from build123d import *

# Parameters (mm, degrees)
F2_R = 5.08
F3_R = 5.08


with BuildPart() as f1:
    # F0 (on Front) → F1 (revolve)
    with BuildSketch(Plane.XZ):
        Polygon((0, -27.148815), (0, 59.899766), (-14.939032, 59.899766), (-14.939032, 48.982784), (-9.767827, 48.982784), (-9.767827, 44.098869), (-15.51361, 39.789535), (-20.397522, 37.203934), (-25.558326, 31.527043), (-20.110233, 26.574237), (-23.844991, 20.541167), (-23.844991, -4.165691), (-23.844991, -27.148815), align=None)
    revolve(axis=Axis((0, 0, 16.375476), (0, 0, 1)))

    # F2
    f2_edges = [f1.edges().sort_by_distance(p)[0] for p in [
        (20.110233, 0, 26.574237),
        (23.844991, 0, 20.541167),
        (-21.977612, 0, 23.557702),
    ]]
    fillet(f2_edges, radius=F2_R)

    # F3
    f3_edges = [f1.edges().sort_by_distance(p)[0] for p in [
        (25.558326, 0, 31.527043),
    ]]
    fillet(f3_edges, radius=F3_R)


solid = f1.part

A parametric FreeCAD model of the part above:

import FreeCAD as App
import Part
import Sketcher
Q = App.Units.Quantity


def edges_at(feature, points):
    """Names of the edges that pass closest to the given points."""
    edges = feature.Shape.Edges
    near = lambda p: min(range(len(edges)), key=lambda i: edges[i].distToShape(Part.Vertex(*p))[0])
    return sorted({f"Edge{near(p) + 1}" for p in points})


def add_polygon(sketch, points):
    """Adds a closed chain of lines whose ends are joined by coincident constraints."""
    first, n = sketch.GeometryCount, len(points)
    for a, b in zip(points, points[1:] + points[:1]):
        sketch.addGeometry(Part.LineSegment(App.Vector(*a, 0), App.Vector(*b, 0)), False)
    for i in range(n):
        sketch.addConstraint(Sketcher.Constraint("Coincident", first + i, 2, first + (i + 1) % n, 1))

doc = App.newDocument("Part")
params = doc.addObject("Spreadsheet::Sheet", "Params")
for row, (alias, value) in enumerate([
    ("revolution_angle", "360 deg"),
    ("fillet_radius", "0.2 in"),
    ("fillet2_radius", "0.2 in"),
], start=1):
    params.set(f"A{row}", alias)
    params.set(f"B{row}", "=" + value)
    params.setAlias(f"B{row}", alias)

body = doc.addObject("PartDesign::Body", "Body")

# Sketch on XZ plane
sketch1 = body.newObject("Sketcher::SketchObject", "Sketch")
sketch1.AttachmentSupport = (doc.getObject("XZ_Plane"), [""])
sketch1.MapMode = "FlatFace"
add_polygon(sketch1, [(0, -27.1), (0, 59.9), (-14.9, 59.9), (-14.9, 49), (-9.8, 49), (-9.8, 44.1), (-15.5, 39.8), (-20.4, 37.2), (-25.6, 31.5), (-20.1, 26.6), (-23.8, 20.5), (-23.8, -27.1)])  # lines 0-11
sketch1.addConstraint([
    Sketcher.Constraint("Vertical", 0),
    Sketcher.Constraint("Horizontal", 1),
    Sketcher.Constraint("Vertical", 2),
    Sketcher.Constraint("Horizontal", 3),
    Sketcher.Constraint("Vertical", 4),
    Sketcher.Constraint("Vertical", 10),
    Sketcher.Constraint("Horizontal", 11),
    Sketcher.Constraint("PointOnObject", 0, 2, -2),
    Sketcher.Constraint("Perpendicular", 7, 8),
    Sketcher.Constraint("DistanceX", 1, 2, 1, 1, Q("14.939032 mm")),
    Sketcher.Constraint("DistanceX", 11, 1, 11, 2, Q("23.844991 mm")),
    Sketcher.Constraint("DistanceY", 0, 1, 0, 2, Q("87.048581 mm")),
    Sketcher.Constraint("DistanceY", 2, 2, 2, 1, Q("10.916982 mm")),
    Sketcher.Constraint("DistanceY", 6, 2, 5, 2, Q("2.585601 mm")),
    Sketcher.Constraint("DistanceX", 7, 2, 4, 2, Q("15.790499 mm")),
    Sketcher.Constraint("DistanceY", 8, 2, 5, 2, Q("13.215298 mm")),
    Sketcher.Constraint("DistanceX", 8, 2, 2, 2, Q("5.171201 mm")),
    Sketcher.Constraint("DistanceY", 9, 2, 4, 2, Q("23.557702 mm")),
    Sketcher.Constraint("Distance", 7, Q("7.672092 mm")),
    Sketcher.Constraint("Distance", 8, Q("7.36288 mm")),
    Sketcher.Constraint("DistanceY", 4, 2, 4, 1, Q("4.883915 mm")),
    Sketcher.Constraint("DistanceY", -1, 1, 4, 2, Q("44.098869 mm")),
    Sketcher.Constraint("DistanceX", 5, 2, -1, 1, Q("15.51361 mm")),
    Sketcher.Constraint("DistanceY", 5, 2, 2, 2, Q("9.193249 mm")),
])
revolution = body.newObject("PartDesign::Revolution", "Revolution")
revolution.Profile = sketch1
revolution.ReferenceAxis = (sketch1, ["V_Axis"])
revolution.setExpression("Angle", "Params.revolution_angle")
doc.recompute()

fillet = body.newObject("PartDesign::Fillet", "Fillet")
fillet.Base = (revolution, edges_at(revolution, [(20.11, 0, 26.574), (23.845, 0, 20.541), (-21.978, 0, 23.558)]))
fillet.setExpression("Radius", "Params.fillet_radius")
doc.recompute()

fillet2 = body.newObject("PartDesign::Fillet", "Fillet001")
fillet2.Base = (fillet, edges_at(fillet, [(25.558, 0, 31.527)]))
fillet2.setExpression("Radius", "Params.fillet2_radius")

doc.recompute()
